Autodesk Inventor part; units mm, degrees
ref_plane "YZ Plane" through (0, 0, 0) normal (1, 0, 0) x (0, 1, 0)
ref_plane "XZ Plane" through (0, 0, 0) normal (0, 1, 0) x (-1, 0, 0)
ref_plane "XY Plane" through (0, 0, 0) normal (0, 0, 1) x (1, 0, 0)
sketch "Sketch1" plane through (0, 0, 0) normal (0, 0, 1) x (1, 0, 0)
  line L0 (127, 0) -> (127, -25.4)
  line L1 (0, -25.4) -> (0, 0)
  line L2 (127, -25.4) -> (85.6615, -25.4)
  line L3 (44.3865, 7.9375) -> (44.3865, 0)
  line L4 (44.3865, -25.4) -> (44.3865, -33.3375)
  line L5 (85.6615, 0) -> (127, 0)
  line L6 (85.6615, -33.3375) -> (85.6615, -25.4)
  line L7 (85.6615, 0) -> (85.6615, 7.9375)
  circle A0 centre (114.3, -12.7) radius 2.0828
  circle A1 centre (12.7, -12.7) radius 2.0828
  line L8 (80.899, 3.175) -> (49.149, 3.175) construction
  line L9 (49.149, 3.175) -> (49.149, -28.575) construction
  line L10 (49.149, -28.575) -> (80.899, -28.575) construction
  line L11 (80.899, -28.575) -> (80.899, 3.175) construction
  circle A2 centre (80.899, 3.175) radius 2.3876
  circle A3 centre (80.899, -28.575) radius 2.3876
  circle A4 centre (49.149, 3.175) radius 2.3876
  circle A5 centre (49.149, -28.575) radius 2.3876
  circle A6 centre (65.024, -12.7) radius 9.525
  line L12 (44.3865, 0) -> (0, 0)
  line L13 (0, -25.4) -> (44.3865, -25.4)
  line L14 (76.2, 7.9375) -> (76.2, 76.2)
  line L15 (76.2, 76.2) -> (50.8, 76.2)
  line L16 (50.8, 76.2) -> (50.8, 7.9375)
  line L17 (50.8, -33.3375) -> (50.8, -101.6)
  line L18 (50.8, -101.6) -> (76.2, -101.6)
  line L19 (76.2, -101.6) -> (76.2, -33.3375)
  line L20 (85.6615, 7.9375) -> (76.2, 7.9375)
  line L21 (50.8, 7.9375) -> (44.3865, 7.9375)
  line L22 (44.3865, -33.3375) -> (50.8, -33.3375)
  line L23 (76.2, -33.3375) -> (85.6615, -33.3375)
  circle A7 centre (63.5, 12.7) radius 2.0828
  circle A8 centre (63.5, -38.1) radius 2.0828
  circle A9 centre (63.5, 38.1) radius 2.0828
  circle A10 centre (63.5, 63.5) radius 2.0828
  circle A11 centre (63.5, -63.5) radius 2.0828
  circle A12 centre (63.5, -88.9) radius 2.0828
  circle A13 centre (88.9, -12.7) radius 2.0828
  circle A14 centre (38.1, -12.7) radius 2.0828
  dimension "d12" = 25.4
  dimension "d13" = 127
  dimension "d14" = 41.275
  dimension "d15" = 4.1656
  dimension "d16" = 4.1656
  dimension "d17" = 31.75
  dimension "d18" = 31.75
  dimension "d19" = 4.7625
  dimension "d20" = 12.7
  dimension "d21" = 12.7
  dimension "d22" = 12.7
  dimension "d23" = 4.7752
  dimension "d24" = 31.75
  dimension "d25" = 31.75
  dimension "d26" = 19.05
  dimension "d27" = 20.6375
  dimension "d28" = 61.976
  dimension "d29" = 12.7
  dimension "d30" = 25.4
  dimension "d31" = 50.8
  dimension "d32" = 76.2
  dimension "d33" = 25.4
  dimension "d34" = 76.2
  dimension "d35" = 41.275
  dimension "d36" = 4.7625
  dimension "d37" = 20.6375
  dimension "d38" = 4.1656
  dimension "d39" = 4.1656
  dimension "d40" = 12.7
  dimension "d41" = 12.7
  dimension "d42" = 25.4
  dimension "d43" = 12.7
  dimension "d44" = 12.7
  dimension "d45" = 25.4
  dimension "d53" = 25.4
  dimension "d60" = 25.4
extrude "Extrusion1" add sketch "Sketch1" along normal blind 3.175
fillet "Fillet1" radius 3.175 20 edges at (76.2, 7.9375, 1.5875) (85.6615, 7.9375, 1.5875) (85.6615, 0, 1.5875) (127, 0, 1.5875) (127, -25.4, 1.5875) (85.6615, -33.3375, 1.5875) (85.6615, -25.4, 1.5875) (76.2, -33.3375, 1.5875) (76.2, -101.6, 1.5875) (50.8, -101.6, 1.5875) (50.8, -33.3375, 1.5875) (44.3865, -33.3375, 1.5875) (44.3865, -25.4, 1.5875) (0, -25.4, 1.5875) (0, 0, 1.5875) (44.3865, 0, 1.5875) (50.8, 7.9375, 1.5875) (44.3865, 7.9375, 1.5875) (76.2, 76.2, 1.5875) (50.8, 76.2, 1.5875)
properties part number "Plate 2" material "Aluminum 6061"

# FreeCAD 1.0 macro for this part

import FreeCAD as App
import Part
import Sketcher
Q = App.Units.Quantity


def edges_at(feature, points):
    """Names of the edges that pass closest to the given points."""
    edges = feature.Shape.Edges
    near = lambda p: min(range(len(edges)), key=lambda i: edges[i].distToShape(Part.Vertex(*p))[0])
    return sorted({f"Edge{near(p) + 1}" for p in points})


def add_polygon(sketch, points):
    """Adds a closed chain of lines whose ends are joined by coincident constraints."""
    first, n = sketch.GeometryCount, len(points)
    for a, b in zip(points, points[1:] + points[:1]):
        sketch.addGeometry(Part.LineSegment(App.Vector(*a, 0), App.Vector(*b, 0)), False)
    for i in range(n):
        sketch.addConstraint(Sketcher.Constraint("Coincident", first + i, 2, first + (i + 1) % n, 1))

doc = App.newDocument("Part")
body = doc.addObject("PartDesign::Body", "Body")

# Sketch on XY plane
sketch1 = body.newObject("Sketcher::SketchObject", "Sketch")
sketch1.AttachmentSupport = (doc.getObject("XY_Plane"), [""])
sketch1.MapMode = "FlatFace"
add_polygon(sketch1, [(127, -25.4), (127, 0), (85.7, 0), (85.7, 7.9), (76.2, 7.9), (76.2, 76.2), (50.8, 76.2), (50.8, 7.9), (44.4, 7.9), (44.4, 0), (0, 0), (0, -25.4), (44.4, -25.4), (44.4, -33.3), (50.8, -33.3), (50.8, -101.6), (76.2, -101.6), (76.2, -33.3), (85.7, -33.3), (85.7, -25.4)])  # lines 0-19
sketch1.addGeometry(Part.Circle(App.Vector(12.7, -12.7, 0), App.Vector(0, 0, 1), 2.1), False)  # 20
sketch1.addGeometry(Part.Circle(App.Vector(38.1, -12.7, 0), App.Vector(0, 0, 1), 2.1), False)  # 21
sketch1.addGeometry(Part.Circle(App.Vector(49.1, -28.6, 0), App.Vector(0, 0, 1), 2.4), False)  # 22
sketch1.addGeometry(Part.Circle(App.Vector(63.5, -88.9, 0), App.Vector(0, 0, 1), 2.1), False)  # 23
sketch1.addGeometry(Part.Circle(App.Vector(63.5, -63.5, 0), App.Vector(0, 0, 1), 2.1), False)  # 24
sketch1.addGeometry(Part.Circle(App.Vector(63.5, -38.1, 0), App.Vector(0, 0, 1), 2.1), False)  # 25
sketch1.addGeometry(Part.Circle(App.Vector(65, -12.7, 0), App.Vector(0, 0, 1), 9.5), False)  # 26
sketch1.addGeometry(Part.Circle(App.Vector(80.9, -28.6, 0), App.Vector(0, 0, 1), 2.4), False)  # 27
sketch1.addGeometry(Part.Circle(App.Vector(88.9, -12.7, 0), App.Vector(0, 0, 1), 2.1), False)  # 28
sketch1.addGeometry(Part.Circle(App.Vector(114.3, -12.7, 0), App.Vector(0, 0, 1), 2.1), False)  # 29
sketch1.addGeometry(Part.Circle(App.Vector(49.1, 3.2, 0), App.Vector(0, 0, 1), 2.4), False)  # 30
sketch1.addGeometry(Part.Circle(App.Vector(80.9, 3.2, 0), App.Vector(0, 0, 1), 2.4), False)  # 31
sketch1.addGeometry(Part.Circle(App.Vector(63.5, 12.7, 0), App.Vector(0, 0, 1), 2.1), False)  # 32
sketch1.addGeometry(Part.Circle(App.Vector(63.5, 38.1, 0), App.Vector(0, 0, 1), 2.1), False)  # 33
sketch1.addGeometry(Part.Circle(App.Vector(63.5, 63.5, 0), App.Vector(0, 0, 1), 2.1), False)  # 34
sketch1.addConstraint(Sketcher.Constraint("Vertical", 0))
sketch1.addConstraint(Sketcher.Constraint("Horizontal", 1))
sketch1.addConstraint(Sketcher.Constraint("Vertical", 2))
sketch1.addConstraint(Sketcher.Constraint("Horizontal", 3))
sketch1.addConstraint(Sketcher.Constraint("Vertical", 4))
sketch1.addConstraint(Sketcher.Constraint("Horizontal", 5))
sketch1.addConstraint(Sketcher.Constraint("Vertical", 6))
sketch1.addConstraint(Sketcher.Constraint("Horizontal", 7))
sketch1.addConstraint(Sketcher.Constraint("Vertical", 8))
sketch1.addConstraint(Sketcher.Constraint("Horizontal", 9))
sketch1.addConstraint(Sketcher.Constraint("Vertical", 10))
sketch1.addConstraint(Sketcher.Constraint("Horizontal", 11))
sketch1.addConstraint(Sketcher.Constraint("Vertical", 12))
sketch1.addConstraint(Sketcher.Constraint("Horizontal", 13))
sketch1.addConstraint(Sketcher.Constraint("Vertical", 14))
sketch1.addConstraint(Sketcher.Constraint("Horizontal", 15))
sketch1.addConstraint(Sketcher.Constraint("Vertical", 16))
sketch1.addConstraint(Sketcher.Constraint("Horizontal", 17))
sketch1.addConstraint(Sketcher.Constraint("Vertical", 18))
sketch1.addConstraint(Sketcher.Constraint("Horizontal", 19))
sketch1.addConstraint(Sketcher.Constraint("Coincident", 9, 2, -1, 1))
sketch1.addConstraint(Sketcher.Constraint("Equal", 20, 21))
sketch1.addConstraint(Sketcher.Constraint("Equal", 21, 23))
sketch1.addConstraint(Sketcher.Constraint("Equal", 23, 24))
sketch1.addConstraint(Sketcher.Constraint("Equal", 24, 25))
sketch1.addConstraint(Sketcher.Constraint("Equal", 22, 27))
sketch1.addConstraint(Sketcher.Constraint("Equal", 25, 28))
sketch1.addConstraint(Sketcher.Constraint("Equal", 28, 29))
sketch1.addConstraint(Sketcher.Constraint("Equal", 27, 30))
sketch1.addConstraint(Sketcher.Constraint("Equal", 30, 31))
sketch1.addConstraint(Sketcher.Constraint("Equal", 29, 32))
sketch1.addConstraint(Sketcher.Constraint("Equal", 32, 33))
sketch1.addConstraint(Sketcher.Constraint("Equal", 33, 34))
sketch1.addConstraint(Sketcher.Constraint("Symmetric", 25, 3, 33, 3, -1))
sketch1.addConstraint(Sketcher.Constraint("Symmetric", 24, 3, 34, 3, -1))
sketch1.addConstraint(Sketcher.Constraint("PointOnObject", 0, 2, -1))
sketch1.addConstraint(Sketcher.Constraint("Horizontal", 20, 3, 21, 3))
sketch1.addConstraint(Sketcher.Constraint("Horizontal", 21, 3, 26, 3))
sketch1.addConstraint(Sketcher.Constraint("Horizontal", 22, 3, 27, 3))
sketch1.addConstraint(Sketcher.Constraint("Horizontal", 26, 3, 28, 3))
sketch1.addConstraint(Sketcher.Constraint("Horizontal", 28, 3, 29, 3))
sketch1.addConstraint(Sketcher.Constraint("Horizontal", 30, 3, 31, 3))
sketch1.addConstraint(Sketcher.Constraint("Horizontal", 3, 2, 6, 2))
sketch1.addConstraint(Sketcher.Constraint("Horizontal", 13, 2, 16, 2))
sketch1.addConstraint(Sketcher.Constraint("Horizontal", 11, 2, 18, 2))
sketch1.addConstraint(Sketcher.Constraint("Vertical", 23, 3, 24, 3))
sketch1.addConstraint(Sketcher.Constraint("Vertical", 24, 3, 25, 3))
sketch1.addConstraint(Sketcher.Constraint("Vertical", 22, 3, 30, 3))
sketch1.addConstraint(Sketcher.Constraint("Vertical", 27, 3, 31, 3))
sketch1.addConstraint(Sketcher.Constraint("Vertical", 25, 3, 32, 3))
sketch1.addConstraint(Sketcher.Constraint("Vertical", 8, 2, 11, 2))
sketch1.addConstraint(Sketcher.Constraint("Vertical", 6, 2, 13, 2))
sketch1.addConstraint(Sketcher.Constraint("Vertical", 4, 2, 15, 2))
sketch1.addConstraint(Sketcher.Constraint("Vertical", 2, 2, 17, 2))
sketch1.addConstraint(Sketcher.Constraint("Equal", 15, 0))
sketch1.addConstraint(Sketcher.Constraint("Equal", 8, 12))
sketch1.addConstraint(Sketcher.Constraint("Equal", 6, 14))
sketch1.addConstraint(Sketcher.Constraint("Diameter", 26, Q("0.75 in")))
sketch1.addConstraint(Sketcher.Constraint("DistanceX", 5, 2, 5, 1, Q("1 in")))
sketch1.addConstraint(Sketcher.Constraint("Diameter", 20, Q("0.164 in")))
sketch1.addConstraint(Sketcher.Constraint("Diameter", 22, Q("0.188 in")))
sketch1.addConstraint(Sketcher.Constraint("DistanceX", -1, 1, 0, 2, Q("5 in")))
sketch1.addConstraint(Sketcher.Constraint("DistanceX", -1, 1, 3, 2, Q("3 in")))
sketch1.addConstraint(Sketcher.Constraint("DistanceY", -1, 1, 4, 2, Q("3 in")))
sketch1.addConstraint(Sketcher.Constraint("DistanceX", 20, 3, 21, 3, Q("1 in")))
sketch1.addConstraint(Sketcher.Constraint("DistanceX", 21, 3, 23, 3, Q("1 in")))
sketch1.addConstraint(Sketcher.Constraint("DistanceY", 23, 3, 21, 3, Q("3 in")))
sketch1.addConstraint(Sketcher.Constraint("DistanceY", 23, 3, 24, 3, Q("1 in")))
sketch1.addConstraint(Sketcher.Constraint("DistanceY", 24, 3, 25, 3, Q("1 in")))
sketch1.addConstraint(Sketcher.Constraint("DistanceX", 25, 3, 28, 3, Q("1 in")))
sketch1.addConstraint(Sketcher.Constraint("DistanceX", 28, 3, 29, 3, Q("1 in")))
sketch1.addConstraint(Sketcher.Constraint("DistanceY", 26, 3, 32, 3, Q("1 in")))
sketch1.addConstraint(Sketcher.Constraint("DistanceY", 32, 3, 33, 3, Q("1 in")))
sketch1.addConstraint(Sketcher.Constraint("DistanceX", -1, 1, 20, 3, Q("0.5 in")))
sketch1.addConstraint(Sketcher.Constraint("DistanceX", 22, 3, 27, 3, Q("1.25 in")))
sketch1.addConstraint(Sketcher.Constraint("DistanceY", 22, 3, 30, 3, Q("1.25 in")))
sketch1.addConstraint(Sketcher.Constraint("DistanceX", 26, 3, 0, 2, Q("2.44 in")))
sketch1.addConstraint(Sketcher.Constraint("DistanceX", 31, 3, 1, 2, Q("0.1875 in")))
sketch1.addConstraint(Sketcher.Constraint("DistanceX", 26, 3, 1, 2, Q("0.8125 in")))
sketch1.addConstraint(Sketcher.Constraint("DistanceY", 31, 3, 2, 2, Q("0.1875 in")))
sketch1.addConstraint(Sketcher.Constraint("DistanceY", 28, 3, 2, 2, Q("0.8125 in")))
sketch1.addConstraint(Sketcher.Constraint("DistanceX", 7, 2, 30, 3, Q("0.1875 in")))
pad1 = body.newObject("PartDesign::Pad", "Pad")
pad1.Profile = sketch1
pad1.Length = Q("0.125 in")
doc.recompute()

fillet = body.newObject("PartDesign::Fillet", "Fillet")
fillet.Base = (pad1, edges_at(pad1, [
    (76.2, 7.938, 1.587),
    (85.662, 7.938, 1.587),
    (85.662, 0, 1.587),
    (127, 0, 1.587),
    (127, -25.4, 1.587),
    (85.662, -33.337, 1.587),
    (85.662, -25.4, 1.587),
    (76.2, -33.337, 1.587),
    (76.2, -101.6, 1.587),
    (50.8, -101.6, 1.587),
    (50.8, -33.337, 1.587),
    (44.386, -33.337, 1.587),
    (44.386, -25.4, 1.587),
    (0, -25.4, 1.587),
    (0, 0, 1.587),
    (44.386, 0, 1.587),
    (50.8, 7.938, 1.587),
    (44.386, 7.938, 1.587),
    (76.2, 76.2, 1.587),
    (50.8, 76.2, 1.587),
]))
fillet.Radius = Q("0.125 in")

doc.recompute()
